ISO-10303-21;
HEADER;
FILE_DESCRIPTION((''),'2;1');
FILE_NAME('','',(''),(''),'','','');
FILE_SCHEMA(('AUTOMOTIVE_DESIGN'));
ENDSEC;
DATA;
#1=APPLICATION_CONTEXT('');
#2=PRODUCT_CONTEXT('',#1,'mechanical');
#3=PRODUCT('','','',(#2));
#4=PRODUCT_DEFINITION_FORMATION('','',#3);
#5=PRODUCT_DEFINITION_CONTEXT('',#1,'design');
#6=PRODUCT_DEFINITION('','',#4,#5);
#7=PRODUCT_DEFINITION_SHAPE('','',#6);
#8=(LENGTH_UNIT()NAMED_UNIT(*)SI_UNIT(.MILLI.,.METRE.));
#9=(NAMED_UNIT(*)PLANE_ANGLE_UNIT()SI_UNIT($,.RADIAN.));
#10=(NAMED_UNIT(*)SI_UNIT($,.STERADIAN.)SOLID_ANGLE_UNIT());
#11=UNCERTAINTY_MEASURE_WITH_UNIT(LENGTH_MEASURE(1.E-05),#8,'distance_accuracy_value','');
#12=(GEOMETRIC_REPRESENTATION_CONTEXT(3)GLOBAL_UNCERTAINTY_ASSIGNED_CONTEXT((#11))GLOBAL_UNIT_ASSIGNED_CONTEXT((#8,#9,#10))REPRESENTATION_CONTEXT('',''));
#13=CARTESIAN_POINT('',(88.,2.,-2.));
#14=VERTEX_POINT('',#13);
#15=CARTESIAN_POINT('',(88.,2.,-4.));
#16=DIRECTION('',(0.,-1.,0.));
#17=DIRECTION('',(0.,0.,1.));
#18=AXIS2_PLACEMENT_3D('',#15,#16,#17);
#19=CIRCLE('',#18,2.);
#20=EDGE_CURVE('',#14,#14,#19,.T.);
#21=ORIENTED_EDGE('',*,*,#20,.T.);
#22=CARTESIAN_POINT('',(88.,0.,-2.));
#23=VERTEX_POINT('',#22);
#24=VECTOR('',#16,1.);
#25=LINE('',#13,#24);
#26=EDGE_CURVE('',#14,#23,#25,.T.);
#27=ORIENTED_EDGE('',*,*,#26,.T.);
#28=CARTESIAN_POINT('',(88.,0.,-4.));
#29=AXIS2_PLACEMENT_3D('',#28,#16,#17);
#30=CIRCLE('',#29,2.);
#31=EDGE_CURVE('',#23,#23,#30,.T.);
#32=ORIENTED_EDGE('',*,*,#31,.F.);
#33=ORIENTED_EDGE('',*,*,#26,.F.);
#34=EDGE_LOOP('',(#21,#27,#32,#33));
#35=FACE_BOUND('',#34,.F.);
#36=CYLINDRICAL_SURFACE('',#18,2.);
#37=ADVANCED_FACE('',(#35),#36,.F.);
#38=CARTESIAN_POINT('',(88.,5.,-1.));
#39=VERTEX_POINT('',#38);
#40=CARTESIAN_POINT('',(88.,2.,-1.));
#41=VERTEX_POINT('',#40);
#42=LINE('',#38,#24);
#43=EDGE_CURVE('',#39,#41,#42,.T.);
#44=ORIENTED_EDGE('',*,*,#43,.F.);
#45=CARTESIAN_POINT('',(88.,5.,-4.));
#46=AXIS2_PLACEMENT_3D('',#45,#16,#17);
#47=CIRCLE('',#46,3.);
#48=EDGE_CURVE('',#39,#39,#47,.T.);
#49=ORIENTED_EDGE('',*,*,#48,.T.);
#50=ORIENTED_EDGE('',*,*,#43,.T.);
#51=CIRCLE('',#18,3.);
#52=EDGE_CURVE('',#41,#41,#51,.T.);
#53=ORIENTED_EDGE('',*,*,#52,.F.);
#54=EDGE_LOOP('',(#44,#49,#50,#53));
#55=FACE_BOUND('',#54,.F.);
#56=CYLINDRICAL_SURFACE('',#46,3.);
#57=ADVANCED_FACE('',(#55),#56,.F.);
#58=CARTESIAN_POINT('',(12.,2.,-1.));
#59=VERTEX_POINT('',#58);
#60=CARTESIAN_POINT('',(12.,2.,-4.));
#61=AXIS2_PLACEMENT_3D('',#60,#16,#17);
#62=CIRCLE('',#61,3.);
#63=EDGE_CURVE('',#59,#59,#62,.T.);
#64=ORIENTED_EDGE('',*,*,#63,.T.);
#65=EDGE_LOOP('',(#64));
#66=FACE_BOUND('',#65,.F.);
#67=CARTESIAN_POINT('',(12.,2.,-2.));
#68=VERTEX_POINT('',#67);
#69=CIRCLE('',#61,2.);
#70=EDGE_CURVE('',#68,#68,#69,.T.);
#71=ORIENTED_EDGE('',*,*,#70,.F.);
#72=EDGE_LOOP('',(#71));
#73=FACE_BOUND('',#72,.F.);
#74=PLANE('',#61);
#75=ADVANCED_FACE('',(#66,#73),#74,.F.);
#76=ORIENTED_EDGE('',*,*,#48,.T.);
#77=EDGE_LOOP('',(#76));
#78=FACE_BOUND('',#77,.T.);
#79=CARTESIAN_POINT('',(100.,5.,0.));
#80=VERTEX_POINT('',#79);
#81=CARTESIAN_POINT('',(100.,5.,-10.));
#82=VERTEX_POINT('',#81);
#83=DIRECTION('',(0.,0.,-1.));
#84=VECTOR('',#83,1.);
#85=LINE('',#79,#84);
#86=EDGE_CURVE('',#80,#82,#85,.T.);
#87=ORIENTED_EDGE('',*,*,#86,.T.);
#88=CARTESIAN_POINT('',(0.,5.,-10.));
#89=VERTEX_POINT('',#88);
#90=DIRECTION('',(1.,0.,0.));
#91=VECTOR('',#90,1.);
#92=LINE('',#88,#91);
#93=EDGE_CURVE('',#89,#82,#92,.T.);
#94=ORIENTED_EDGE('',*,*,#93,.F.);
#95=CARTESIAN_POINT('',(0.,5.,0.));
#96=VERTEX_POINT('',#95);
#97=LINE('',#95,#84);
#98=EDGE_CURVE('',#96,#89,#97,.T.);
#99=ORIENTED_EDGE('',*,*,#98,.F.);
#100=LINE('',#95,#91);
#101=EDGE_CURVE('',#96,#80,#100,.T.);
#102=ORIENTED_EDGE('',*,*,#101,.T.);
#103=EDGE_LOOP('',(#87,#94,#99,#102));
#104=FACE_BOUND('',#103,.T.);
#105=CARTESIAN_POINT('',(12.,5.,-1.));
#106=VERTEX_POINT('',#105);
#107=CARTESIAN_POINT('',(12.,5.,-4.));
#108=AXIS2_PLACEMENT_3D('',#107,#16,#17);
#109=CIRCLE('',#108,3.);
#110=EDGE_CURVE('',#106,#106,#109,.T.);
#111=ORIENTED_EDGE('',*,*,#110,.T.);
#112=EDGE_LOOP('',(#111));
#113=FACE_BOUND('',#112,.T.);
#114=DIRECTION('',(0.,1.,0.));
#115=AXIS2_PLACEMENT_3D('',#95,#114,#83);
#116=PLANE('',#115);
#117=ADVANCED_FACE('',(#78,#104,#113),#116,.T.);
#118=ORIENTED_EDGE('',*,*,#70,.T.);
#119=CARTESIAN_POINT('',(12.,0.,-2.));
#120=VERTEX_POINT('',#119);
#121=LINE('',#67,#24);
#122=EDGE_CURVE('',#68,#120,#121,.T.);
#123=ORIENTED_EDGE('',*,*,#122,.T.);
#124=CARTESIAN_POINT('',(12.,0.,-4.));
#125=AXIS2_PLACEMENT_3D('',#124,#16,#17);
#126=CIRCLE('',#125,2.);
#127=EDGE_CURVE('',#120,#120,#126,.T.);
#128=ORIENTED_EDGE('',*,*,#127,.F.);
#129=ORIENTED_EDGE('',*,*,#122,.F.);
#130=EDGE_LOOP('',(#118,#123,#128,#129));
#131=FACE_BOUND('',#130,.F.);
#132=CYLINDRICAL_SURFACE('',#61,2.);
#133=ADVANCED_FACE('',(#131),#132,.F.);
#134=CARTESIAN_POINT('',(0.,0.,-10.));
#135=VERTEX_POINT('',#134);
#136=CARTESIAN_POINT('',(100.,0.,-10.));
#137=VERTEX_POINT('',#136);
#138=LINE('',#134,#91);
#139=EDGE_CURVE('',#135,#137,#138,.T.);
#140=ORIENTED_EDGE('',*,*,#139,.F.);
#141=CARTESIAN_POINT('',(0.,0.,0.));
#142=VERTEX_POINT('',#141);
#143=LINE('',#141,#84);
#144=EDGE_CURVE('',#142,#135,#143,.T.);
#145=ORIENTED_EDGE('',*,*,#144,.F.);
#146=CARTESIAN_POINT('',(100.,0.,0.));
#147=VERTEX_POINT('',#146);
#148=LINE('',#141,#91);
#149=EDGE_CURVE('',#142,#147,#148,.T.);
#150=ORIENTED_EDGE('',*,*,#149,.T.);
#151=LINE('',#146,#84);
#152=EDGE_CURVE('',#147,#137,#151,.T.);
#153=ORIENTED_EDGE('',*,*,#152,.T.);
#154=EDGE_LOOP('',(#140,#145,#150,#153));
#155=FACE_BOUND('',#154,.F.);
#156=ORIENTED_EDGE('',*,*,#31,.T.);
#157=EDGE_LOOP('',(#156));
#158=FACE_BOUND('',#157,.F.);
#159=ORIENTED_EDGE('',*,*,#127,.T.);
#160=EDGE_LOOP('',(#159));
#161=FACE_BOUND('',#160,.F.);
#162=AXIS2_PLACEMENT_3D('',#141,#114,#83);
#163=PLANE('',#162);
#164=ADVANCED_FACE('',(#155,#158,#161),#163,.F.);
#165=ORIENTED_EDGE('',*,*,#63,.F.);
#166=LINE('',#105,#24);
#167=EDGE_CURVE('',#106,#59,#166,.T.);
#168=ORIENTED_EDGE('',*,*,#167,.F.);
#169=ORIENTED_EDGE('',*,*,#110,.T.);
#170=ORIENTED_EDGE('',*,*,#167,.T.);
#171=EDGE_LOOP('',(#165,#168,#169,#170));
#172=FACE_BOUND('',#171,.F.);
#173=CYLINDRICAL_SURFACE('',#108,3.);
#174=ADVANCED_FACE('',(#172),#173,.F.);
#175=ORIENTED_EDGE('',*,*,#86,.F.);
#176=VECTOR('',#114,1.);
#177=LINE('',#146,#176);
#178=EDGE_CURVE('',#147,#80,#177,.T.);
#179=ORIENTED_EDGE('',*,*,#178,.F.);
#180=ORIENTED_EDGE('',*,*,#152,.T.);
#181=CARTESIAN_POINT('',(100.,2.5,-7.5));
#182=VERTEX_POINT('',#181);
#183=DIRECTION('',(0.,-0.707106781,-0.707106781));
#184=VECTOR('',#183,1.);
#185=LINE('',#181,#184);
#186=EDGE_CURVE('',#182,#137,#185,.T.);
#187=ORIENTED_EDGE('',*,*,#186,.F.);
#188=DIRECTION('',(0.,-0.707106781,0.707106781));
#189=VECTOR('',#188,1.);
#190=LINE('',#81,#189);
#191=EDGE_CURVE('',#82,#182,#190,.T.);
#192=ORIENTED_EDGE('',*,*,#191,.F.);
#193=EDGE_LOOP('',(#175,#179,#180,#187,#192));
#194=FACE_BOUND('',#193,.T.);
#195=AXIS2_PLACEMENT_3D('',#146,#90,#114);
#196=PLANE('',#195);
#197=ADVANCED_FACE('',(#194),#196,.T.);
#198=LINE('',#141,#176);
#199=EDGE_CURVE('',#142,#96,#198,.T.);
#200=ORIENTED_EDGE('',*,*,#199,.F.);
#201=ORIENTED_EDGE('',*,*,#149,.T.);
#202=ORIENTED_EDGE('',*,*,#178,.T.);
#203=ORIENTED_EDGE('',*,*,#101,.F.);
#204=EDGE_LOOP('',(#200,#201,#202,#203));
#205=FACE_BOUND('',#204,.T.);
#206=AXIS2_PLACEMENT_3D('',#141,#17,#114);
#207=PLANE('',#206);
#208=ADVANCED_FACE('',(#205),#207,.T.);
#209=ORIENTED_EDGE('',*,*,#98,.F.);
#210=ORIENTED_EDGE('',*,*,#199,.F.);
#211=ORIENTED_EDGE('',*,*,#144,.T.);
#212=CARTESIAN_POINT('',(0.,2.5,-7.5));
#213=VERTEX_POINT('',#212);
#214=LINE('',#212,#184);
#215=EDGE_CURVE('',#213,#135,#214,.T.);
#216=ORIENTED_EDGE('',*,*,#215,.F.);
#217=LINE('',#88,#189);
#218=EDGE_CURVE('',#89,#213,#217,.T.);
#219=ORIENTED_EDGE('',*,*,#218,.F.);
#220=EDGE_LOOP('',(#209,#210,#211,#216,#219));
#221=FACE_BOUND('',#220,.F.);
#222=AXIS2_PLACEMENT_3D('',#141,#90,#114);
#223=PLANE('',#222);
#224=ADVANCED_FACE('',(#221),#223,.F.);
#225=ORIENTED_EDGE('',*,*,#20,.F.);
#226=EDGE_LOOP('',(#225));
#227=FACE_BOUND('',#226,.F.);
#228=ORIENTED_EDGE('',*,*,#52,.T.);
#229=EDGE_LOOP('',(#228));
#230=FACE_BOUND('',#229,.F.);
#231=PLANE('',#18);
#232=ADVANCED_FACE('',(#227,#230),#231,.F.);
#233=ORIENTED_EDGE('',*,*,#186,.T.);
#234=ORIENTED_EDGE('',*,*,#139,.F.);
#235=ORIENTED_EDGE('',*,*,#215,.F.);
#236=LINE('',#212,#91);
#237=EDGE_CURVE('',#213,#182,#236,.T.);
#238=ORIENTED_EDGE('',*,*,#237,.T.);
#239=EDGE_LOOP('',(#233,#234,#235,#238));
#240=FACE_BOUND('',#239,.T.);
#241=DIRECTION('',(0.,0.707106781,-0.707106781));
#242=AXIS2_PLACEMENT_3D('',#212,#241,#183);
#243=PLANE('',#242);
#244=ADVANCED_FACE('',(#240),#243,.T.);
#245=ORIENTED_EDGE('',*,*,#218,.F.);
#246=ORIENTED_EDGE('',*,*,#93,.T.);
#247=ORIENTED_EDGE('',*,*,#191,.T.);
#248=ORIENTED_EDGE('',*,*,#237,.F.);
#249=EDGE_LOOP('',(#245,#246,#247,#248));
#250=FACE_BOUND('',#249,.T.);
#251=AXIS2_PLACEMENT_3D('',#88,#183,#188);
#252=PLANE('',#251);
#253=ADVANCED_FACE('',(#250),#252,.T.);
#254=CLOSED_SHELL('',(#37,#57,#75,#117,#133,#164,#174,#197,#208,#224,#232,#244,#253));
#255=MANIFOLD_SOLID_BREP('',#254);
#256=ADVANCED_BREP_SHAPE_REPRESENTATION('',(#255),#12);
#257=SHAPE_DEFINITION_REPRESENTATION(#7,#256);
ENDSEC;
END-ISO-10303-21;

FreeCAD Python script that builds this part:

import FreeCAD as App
import Part
import Sketcher
Q = App.Units.Quantity

doc = App.newDocument("Part")
body = doc.addObject("PartDesign::Body", "Body")

sketch1 = body.newObject("Sketcher::SketchObject", "Sketch")
sketch1.AttachmentSupport = (doc.getObject("YZ_Plane"), [""])
sketch1.MapMode = "FlatFace"
sketch1.addGeometry([
    Part.LineSegment(App.Vector(5, 0, 0), App.Vector(0, 0, 0)),
    Part.LineSegment(App.Vector(0, 0, 0), App.Vector(0, -10, 0)),
    Part.LineSegment(App.Vector(0, -10, 0), App.Vector(2.5, -7.5, 0)),
    Part.LineSegment(App.Vector(2.5, -7.5, 0), App.Vector(5, -10, 0)),
    Part.LineSegment(App.Vector(5, -10, 0), App.Vector(5, 0, 0)),
], False)
sketch1.addConstraint([
    Sketcher.Constraint("Coincident", 0, 2, 1, 1),
    Sketcher.Constraint("Coincident", 1, 2, 2, 1),
    Sketcher.Constraint("Coincident", 2, 2, 3, 1),
    Sketcher.Constraint("Coincident", 3, 2, 4, 1),
    Sketcher.Constraint("Coincident", 4, 2, 0, 1),
    Sketcher.Constraint("Horizontal", 0),
    Sketcher.Constraint("Vertical", 1),
    Sketcher.Constraint("Vertical", 4),
    Sketcher.Constraint("Coincident", 0, 2, -1, 1),
    Sketcher.Constraint("Perpendicular", 2, 3),
    Sketcher.Constraint("Horizontal", 1, 2, 3, 2),
    Sketcher.Constraint("Equal", 2, 3),
    Sketcher.Constraint("DistanceX", 0, 2, 0, 1, Q("5 mm")),
    Sketcher.Constraint("DistanceY", 1, 2, 1, 1, Q("10 mm")),
])
pad1 = body.newObject("PartDesign::Pad", "Pad")
pad1.Profile = sketch1
pad1.Length = 100

sketch2 = body.newObject("Sketcher::SketchObject", "Sketch001")
sketch2.AttachmentSupport = (doc.getObject("XZ_Plane"), [""])
sketch2.MapMode = "FlatFace"
sketch2.AttachmentOffset = App.Placement(App.Vector(0, 0, -5), App.Rotation())
sketch2.addGeometry(Part.Circle(App.Vector(12, -4, 0), App.Vector(0, 0, 1), 2), False)
sketch2.addConstraint([
    Sketcher.Constraint("Diameter", 0, Q("4 mm")),
    Sketcher.Constraint("DistanceX", -1, 1, 0, 3, Q("12 mm")),
    Sketcher.Constraint("DistanceY", 0, 3, -1, 1, Q("4 mm")),
])
doc.recompute()
hole = body.newObject("PartDesign::Hole", "Hole")
hole.Profile = sketch2
hole.ThreadType = "None"
hole.Diameter = 4
hole.DepthType = "ThroughAll"
hole.HoleCutType = "Counterbore"
hole.HoleCutDiameter = 6
hole.HoleCutDepth = 3
hole.Reversed = True

sketch3 = body.newObject("Sketcher::SketchObject", "Sketch002")
sketch3.AttachmentSupport = (doc.getObject("XZ_Plane"), [""])
sketch3.MapMode = "FlatFace"
sketch3.AttachmentOffset = App.Placement(App.Vector(0, 0, -5), App.Rotation())
sketch3.addGeometry(Part.Circle(App.Vector(88, -4, 0), App.Vector(0, 0, 1), 2), False)
sketch3.addConstraint([
    Sketcher.Constraint("Diameter", 0, Q("4 mm")),
    Sketcher.Constraint("DistanceX", -1, 1, 0, 3, Q("88 mm")),
    Sketcher.Constraint("DistanceY", 0, 3, -1, 1, Q("4 mm")),
])
doc.recompute()
hole2 = body.newObject("PartDesign::Hole", "Hole001")
hole2.Profile = sketch3
hole2.ThreadType = "None"
hole2.Diameter = 4
hole2.DepthType = "ThroughAll"
hole2.HoleCutType = "Counterbore"
hole2.HoleCutDiameter = 6
hole2.HoleCutDepth = 3
hole2.Reversed = True

doc.recompute()
